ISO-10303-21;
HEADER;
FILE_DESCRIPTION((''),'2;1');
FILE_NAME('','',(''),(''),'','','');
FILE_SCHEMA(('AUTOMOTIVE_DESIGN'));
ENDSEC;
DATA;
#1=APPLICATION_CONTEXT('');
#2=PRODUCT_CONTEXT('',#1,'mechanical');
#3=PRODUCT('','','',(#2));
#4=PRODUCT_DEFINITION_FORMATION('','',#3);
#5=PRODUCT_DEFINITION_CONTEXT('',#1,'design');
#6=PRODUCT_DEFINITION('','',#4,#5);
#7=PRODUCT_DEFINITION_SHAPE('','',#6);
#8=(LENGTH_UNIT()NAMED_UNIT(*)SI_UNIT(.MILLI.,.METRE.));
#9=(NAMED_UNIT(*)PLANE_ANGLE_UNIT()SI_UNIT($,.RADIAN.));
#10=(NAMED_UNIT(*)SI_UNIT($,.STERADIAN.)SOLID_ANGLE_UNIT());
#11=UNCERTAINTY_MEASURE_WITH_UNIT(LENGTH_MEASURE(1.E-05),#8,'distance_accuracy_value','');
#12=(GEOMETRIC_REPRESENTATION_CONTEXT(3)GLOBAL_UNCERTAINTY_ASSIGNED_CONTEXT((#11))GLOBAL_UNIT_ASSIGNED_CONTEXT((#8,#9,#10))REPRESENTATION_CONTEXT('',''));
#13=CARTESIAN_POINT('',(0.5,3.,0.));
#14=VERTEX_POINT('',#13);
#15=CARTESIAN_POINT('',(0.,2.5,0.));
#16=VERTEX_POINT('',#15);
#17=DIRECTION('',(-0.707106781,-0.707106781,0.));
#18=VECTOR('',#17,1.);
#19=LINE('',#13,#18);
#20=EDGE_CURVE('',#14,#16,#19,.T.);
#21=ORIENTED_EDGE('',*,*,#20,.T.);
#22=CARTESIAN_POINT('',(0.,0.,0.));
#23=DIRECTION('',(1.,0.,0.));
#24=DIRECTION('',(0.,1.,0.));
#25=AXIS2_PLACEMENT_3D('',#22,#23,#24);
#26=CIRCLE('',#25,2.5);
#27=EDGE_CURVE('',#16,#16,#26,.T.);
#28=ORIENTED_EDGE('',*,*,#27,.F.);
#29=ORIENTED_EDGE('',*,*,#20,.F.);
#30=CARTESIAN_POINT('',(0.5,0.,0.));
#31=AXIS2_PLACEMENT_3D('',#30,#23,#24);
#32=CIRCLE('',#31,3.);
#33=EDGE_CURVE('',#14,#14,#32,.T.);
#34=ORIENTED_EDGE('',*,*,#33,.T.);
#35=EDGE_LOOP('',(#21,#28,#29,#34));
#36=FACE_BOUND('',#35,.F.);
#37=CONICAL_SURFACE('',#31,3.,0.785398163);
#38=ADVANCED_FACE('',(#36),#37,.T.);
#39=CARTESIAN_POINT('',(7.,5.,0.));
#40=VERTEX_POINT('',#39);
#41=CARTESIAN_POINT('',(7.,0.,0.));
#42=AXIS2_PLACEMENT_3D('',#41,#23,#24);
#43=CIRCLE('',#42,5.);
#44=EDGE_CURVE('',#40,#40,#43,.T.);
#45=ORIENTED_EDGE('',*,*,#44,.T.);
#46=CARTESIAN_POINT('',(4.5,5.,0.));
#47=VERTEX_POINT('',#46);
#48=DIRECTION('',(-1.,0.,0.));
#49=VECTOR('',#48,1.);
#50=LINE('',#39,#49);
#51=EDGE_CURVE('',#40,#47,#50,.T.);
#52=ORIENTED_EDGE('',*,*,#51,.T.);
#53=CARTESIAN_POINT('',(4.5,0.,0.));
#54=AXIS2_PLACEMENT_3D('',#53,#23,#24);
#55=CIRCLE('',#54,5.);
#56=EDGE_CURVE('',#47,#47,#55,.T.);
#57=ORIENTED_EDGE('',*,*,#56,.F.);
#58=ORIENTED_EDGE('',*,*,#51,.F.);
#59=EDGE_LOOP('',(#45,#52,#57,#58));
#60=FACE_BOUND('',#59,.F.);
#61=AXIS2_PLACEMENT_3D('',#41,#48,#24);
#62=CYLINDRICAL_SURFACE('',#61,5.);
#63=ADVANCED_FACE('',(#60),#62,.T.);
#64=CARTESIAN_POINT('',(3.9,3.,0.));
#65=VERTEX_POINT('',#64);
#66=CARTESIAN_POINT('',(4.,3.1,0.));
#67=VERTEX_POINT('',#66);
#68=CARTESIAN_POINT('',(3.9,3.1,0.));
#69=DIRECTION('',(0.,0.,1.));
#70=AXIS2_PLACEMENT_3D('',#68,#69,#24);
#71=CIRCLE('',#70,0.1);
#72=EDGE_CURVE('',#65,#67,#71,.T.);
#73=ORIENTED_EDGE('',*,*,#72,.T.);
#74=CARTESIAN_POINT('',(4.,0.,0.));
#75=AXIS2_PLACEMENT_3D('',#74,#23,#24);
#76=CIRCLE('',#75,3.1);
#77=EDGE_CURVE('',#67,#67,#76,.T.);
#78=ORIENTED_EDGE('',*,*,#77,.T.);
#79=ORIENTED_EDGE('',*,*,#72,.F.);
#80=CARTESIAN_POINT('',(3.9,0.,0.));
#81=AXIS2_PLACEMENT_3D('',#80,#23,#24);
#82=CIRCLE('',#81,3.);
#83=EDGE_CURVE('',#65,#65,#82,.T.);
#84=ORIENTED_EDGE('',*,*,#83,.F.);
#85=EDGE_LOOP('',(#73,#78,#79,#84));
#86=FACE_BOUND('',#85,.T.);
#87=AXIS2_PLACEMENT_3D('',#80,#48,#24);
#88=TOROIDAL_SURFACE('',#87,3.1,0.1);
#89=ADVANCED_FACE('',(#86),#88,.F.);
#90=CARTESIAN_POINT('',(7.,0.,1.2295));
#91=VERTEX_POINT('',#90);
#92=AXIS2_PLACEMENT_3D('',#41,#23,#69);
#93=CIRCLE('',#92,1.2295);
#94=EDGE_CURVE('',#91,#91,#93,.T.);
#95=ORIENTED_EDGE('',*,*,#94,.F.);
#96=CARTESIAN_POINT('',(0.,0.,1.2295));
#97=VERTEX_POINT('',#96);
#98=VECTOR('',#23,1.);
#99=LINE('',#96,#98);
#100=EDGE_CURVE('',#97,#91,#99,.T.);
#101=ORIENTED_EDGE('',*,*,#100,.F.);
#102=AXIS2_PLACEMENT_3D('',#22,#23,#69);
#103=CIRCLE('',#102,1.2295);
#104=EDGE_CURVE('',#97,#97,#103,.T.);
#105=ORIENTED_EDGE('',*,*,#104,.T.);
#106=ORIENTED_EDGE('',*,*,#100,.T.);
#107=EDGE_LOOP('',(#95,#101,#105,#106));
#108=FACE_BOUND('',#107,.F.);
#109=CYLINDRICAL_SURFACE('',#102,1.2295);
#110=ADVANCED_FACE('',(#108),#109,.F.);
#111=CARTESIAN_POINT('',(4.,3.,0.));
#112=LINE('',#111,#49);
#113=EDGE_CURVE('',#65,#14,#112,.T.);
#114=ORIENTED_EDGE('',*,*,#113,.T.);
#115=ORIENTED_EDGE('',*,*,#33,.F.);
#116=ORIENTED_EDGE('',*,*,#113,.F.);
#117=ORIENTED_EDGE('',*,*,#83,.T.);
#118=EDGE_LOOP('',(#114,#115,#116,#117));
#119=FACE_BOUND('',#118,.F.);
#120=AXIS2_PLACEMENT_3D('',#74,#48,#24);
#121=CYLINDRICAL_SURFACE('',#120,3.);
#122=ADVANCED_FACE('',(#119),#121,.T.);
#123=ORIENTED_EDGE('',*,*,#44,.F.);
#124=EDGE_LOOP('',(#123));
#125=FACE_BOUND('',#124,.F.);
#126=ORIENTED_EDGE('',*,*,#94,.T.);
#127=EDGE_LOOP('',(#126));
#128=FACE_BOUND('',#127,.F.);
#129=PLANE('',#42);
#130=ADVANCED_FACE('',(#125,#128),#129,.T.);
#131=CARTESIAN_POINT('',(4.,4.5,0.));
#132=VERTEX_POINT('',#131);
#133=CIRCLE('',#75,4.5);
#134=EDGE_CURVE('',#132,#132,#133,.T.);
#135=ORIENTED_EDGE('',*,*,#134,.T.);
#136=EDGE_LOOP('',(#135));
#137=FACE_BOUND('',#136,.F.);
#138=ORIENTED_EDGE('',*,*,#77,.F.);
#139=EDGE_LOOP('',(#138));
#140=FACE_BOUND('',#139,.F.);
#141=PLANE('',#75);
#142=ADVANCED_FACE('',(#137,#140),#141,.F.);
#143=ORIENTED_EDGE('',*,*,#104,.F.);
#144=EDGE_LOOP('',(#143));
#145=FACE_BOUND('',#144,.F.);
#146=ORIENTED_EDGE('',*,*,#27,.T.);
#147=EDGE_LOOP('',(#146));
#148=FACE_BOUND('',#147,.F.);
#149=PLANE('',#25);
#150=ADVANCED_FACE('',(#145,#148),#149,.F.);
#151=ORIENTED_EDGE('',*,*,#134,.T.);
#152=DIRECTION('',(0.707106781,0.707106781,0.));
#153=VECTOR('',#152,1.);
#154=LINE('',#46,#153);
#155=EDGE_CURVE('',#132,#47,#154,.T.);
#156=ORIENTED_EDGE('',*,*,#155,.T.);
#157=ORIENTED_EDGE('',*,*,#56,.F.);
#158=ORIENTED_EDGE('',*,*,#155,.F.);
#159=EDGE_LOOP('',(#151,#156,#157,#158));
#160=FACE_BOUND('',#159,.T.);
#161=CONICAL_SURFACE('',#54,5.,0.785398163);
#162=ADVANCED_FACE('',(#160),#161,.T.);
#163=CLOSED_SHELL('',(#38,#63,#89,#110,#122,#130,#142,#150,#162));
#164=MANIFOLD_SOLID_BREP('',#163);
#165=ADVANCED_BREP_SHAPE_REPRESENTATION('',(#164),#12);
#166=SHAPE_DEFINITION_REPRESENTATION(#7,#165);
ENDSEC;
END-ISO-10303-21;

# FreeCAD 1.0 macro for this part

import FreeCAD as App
import Part
import Sketcher
from FreeCAD import Vector


def edges_at(feature, points):
    """Names of the edges that pass closest to the given points."""
    edges = feature.Shape.Edges
    near = lambda p: min(range(len(edges)), key=lambda i: edges[i].distToShape(Part.Vertex(*p))[0])
    return sorted({f"Edge{near(p) + 1}" for p in points})


def add_polygon(sketch, points):
    """Adds a closed chain of lines whose ends are joined by coincident constraints."""
    first, n = sketch.GeometryCount, len(points)
    for a, b in zip(points, points[1:] + points[:1]):
        sketch.addGeometry(Part.LineSegment(App.Vector(*a, 0), App.Vector(*b, 0)), False)
    for i in range(n):
        sketch.addConstraint(Sketcher.Constraint("Coincident", first + i, 2, first + (i + 1) % n, 1))

doc = App.newDocument("Part")
params = doc.addObject("Spreadsheet::Sheet", "Params")
for row, (alias, value) in enumerate([
    ("sketch1_width", "3 mm"),
    ("sketch1_width2", "4 mm"),
    ("sketch1_height", "5 mm"),
    ("revolution_angle", "360 deg"),
    ("fillet_radius", "0.1 mm"),
    ("chamfer_size", "0.5 mm"),
    ("hole_diameter", "2.459 mm"),
], start=1):
    params.set(f"A{row}", alias)
    params.set(f"B{row}", "=" + value)
    params.setAlias(f"B{row}", alias)

body = doc.addObject("PartDesign::Body", "Body")

# Sketch on XY plane
sketch1 = body.newObject("Sketcher::SketchObject", "Sketch")
sketch1.AttachmentSupport = (doc.getObject("XY_Plane"), [""])
sketch1.MapMode = "FlatFace"
add_polygon(sketch1, [(0, 3), (0, 0), (7, 0), (7, 5), (4, 5), (4, 3)])  # lines 0-5
sketch1.addConstraint([
    Sketcher.Constraint("Vertical", 0),
    Sketcher.Constraint("Horizontal", 1),
    Sketcher.Constraint("Vertical", 2),
    Sketcher.Constraint("Horizontal", 3),
    Sketcher.Constraint("Vertical", 4),
    Sketcher.Constraint("Horizontal", 5),
    Sketcher.Constraint("Coincident", 0, 2, -1, 1),
    Sketcher.Constraint("Equal", 3, 0),
    Sketcher.Constraint("DistanceX", 3, 2, 3, 1, 3.0),
    Sketcher.Constraint("DistanceX", 5, 2, 5, 1, 4.0),
    Sketcher.Constraint("DistanceY", 2, 1, 2, 2, 5.0),
])
sketch1.setExpression("Constraints[14]", "Params.sketch1_width")
sketch1.setExpression("Constraints[15]", "Params.sketch1_width2")
sketch1.setExpression("Constraints[16]", "Params.sketch1_height")
revolution = body.newObject("PartDesign::Revolution", "Revolution")
revolution.Profile = sketch1
revolution.ReferenceAxis = (sketch1, ["H_Axis"])
revolution.setExpression("Angle", "Params.revolution_angle")
doc.recompute()

fillet = body.newObject("PartDesign::Fillet", "Fillet")
fillet.Base = (revolution, edges_at(revolution, [(4, -3, 0)]))
fillet.setExpression("Radius", "Params.fillet_radius")
doc.recompute()

chamfer = body.newObject("PartDesign::Chamfer", "Chamfer")
chamfer.Base = (fillet, edges_at(fillet, [(4, -5, 0), (0, -3, 0)]))
chamfer.setExpression("Size", "Params.chamfer_size")

# Sketch on YZ plane
sketch2 = body.newObject("Sketcher::SketchObject", "Sketch001")
sketch2.AttachmentSupport = (doc.getObject("YZ_Plane"), [""])
sketch2.MapMode = "FlatFace"
sketch2.addGeometry(Part.Circle(Vector(0, 0, 0), Vector(0, 0, 1), 1.2), False)
sketch2.addConstraint([
    Sketcher.Constraint("Coincident", 0, 3, -1, 1),
    Sketcher.Constraint("Diameter", 0, 2.459),
])
doc.recompute()
hole = body.newObject("PartDesign::Hole", "Hole")
hole.Profile = sketch2
hole.ThreadType = "None"
hole.setExpression("Diameter", "Params.hole_diameter")
hole.DepthType = "ThroughAll"
hole.Reversed = True

doc.recompute()
